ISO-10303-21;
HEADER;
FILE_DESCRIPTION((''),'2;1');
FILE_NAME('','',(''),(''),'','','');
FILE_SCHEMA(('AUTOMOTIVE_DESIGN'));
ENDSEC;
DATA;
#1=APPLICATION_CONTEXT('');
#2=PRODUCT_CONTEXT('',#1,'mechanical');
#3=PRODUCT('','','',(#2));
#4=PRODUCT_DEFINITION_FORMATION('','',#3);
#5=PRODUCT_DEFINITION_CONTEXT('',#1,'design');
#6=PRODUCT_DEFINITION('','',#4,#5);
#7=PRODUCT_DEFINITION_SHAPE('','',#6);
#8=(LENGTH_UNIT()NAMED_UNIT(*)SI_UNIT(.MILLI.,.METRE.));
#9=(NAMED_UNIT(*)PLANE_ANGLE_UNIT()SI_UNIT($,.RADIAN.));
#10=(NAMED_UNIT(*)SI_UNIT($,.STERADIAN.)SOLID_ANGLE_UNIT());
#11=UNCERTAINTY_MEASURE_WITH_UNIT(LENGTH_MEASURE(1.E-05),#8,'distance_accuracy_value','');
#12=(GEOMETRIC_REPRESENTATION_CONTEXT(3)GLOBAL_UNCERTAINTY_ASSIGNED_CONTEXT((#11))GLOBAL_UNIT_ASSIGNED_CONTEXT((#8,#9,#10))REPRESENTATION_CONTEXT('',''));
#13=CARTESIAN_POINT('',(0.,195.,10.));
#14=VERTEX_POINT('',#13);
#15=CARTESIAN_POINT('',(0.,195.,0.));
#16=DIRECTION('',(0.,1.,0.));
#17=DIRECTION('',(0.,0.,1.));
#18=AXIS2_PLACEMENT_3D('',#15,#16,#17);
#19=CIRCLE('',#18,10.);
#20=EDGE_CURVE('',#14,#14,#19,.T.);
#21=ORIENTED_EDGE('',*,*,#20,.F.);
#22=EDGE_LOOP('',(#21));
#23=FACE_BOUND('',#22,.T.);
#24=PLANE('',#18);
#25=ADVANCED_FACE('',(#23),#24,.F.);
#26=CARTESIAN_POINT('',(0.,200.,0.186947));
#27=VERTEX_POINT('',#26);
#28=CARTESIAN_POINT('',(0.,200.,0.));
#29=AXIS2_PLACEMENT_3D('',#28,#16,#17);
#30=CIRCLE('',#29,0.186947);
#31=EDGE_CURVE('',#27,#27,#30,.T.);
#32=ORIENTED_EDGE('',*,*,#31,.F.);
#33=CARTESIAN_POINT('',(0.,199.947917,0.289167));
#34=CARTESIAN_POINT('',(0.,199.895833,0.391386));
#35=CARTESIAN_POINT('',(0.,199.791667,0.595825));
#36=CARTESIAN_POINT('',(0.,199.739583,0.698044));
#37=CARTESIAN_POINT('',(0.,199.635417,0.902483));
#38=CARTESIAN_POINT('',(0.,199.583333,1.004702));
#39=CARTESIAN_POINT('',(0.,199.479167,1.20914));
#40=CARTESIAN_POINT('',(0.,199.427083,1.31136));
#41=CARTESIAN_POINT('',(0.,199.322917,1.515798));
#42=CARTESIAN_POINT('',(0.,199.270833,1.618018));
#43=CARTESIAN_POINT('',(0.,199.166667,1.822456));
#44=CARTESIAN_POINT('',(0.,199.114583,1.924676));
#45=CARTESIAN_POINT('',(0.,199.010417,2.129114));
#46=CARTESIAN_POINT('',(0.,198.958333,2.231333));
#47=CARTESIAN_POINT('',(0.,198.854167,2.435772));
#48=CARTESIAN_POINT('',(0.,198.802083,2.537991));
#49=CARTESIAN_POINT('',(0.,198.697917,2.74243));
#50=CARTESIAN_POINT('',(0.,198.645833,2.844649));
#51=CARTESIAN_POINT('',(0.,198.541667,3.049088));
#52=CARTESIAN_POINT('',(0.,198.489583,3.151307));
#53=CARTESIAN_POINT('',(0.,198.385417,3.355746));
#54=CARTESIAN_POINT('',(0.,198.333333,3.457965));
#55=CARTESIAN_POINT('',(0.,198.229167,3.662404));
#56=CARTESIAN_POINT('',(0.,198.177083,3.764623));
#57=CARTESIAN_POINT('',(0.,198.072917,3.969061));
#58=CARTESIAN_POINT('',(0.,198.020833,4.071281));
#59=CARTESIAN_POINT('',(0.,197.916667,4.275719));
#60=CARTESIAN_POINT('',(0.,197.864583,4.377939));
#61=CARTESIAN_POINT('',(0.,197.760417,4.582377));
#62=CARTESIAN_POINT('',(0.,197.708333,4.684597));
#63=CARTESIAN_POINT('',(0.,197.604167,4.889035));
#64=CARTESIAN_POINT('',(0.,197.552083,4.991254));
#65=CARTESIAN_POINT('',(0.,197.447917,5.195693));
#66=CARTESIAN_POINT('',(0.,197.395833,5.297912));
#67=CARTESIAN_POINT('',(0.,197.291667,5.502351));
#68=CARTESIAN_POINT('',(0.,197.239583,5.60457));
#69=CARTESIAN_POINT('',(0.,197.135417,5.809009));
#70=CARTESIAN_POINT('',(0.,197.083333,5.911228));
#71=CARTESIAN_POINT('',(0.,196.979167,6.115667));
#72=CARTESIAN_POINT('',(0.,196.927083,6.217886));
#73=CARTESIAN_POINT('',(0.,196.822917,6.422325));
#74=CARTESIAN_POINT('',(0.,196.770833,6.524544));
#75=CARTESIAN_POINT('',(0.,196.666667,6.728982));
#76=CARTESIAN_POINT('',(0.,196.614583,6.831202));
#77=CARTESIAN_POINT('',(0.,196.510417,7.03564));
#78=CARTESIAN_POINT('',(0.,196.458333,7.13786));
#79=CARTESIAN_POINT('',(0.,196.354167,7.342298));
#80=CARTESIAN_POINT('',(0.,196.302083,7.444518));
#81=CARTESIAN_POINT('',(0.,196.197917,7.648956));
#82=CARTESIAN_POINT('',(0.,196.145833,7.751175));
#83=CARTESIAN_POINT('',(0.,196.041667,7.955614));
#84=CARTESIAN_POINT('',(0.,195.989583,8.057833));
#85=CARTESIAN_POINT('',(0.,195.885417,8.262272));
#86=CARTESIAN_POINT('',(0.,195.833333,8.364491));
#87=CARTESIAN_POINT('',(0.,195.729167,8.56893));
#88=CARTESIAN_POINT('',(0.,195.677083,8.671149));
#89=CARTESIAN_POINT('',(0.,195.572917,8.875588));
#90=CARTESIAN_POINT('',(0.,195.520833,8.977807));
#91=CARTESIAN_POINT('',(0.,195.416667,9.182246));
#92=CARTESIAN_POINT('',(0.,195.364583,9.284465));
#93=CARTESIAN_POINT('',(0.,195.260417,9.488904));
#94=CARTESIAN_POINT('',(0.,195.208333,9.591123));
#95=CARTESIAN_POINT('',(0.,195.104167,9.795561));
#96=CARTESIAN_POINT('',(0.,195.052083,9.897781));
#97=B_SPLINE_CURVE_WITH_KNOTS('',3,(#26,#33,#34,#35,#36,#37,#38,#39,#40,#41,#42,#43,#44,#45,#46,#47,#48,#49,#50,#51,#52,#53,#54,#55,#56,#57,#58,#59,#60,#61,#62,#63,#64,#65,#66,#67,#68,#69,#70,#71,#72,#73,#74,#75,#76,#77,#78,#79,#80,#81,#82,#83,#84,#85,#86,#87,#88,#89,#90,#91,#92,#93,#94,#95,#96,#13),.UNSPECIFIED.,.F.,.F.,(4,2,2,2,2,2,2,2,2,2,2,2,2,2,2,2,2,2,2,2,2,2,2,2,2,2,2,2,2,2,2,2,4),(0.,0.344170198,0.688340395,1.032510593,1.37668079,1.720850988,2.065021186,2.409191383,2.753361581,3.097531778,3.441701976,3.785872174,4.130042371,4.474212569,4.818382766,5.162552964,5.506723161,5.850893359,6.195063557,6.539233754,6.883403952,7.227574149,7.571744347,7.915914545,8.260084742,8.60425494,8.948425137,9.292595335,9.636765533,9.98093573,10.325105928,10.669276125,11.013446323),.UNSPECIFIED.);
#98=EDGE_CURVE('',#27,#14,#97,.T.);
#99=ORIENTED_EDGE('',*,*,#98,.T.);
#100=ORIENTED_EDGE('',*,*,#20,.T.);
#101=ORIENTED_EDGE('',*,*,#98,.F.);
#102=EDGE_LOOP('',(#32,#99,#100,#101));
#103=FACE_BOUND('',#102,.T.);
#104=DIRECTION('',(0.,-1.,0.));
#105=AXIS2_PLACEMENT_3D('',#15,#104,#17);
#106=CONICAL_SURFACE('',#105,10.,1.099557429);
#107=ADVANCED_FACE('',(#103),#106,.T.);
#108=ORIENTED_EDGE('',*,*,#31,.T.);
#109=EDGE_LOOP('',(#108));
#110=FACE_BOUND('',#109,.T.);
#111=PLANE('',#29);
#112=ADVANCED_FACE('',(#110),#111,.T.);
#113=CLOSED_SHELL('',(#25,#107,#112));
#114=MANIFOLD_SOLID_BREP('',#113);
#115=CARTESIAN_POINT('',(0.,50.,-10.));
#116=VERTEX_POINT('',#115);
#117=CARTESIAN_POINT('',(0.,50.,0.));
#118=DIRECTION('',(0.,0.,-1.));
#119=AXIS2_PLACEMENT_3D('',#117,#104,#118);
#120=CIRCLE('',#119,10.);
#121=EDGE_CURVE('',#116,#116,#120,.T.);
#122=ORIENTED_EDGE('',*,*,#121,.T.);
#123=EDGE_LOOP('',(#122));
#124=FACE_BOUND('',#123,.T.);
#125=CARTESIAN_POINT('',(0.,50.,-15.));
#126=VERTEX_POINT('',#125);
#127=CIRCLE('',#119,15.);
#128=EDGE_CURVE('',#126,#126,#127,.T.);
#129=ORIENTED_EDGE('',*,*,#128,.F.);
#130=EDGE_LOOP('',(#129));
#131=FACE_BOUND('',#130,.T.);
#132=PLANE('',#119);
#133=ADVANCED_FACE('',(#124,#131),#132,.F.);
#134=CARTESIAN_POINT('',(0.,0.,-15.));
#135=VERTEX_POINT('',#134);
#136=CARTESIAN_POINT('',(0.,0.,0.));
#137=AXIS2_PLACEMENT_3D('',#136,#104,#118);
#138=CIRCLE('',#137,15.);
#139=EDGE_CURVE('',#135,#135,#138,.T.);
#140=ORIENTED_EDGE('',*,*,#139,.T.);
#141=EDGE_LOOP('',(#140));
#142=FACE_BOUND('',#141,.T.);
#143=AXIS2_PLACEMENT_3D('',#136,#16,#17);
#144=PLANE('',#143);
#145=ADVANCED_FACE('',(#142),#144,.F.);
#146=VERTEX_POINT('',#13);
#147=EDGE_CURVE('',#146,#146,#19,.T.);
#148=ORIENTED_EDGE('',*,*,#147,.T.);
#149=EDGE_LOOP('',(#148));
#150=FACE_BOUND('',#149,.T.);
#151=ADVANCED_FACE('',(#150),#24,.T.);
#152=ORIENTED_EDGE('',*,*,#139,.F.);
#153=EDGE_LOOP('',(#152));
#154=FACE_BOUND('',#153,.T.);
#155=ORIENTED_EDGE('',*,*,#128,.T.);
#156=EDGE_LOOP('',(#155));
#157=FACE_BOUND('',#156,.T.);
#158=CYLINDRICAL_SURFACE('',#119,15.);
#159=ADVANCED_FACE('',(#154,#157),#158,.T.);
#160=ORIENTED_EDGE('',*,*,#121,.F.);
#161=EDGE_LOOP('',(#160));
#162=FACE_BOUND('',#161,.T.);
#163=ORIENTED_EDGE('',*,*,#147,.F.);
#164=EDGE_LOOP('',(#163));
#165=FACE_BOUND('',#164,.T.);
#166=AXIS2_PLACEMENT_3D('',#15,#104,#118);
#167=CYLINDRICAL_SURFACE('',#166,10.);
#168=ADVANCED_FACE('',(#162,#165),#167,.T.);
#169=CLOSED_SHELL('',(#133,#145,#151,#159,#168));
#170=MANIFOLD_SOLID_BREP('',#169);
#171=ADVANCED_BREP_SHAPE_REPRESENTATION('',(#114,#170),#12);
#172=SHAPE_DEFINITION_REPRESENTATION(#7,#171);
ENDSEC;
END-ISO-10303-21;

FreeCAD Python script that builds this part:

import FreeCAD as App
import Part
import Sketcher

V = App.Vector

doc = App.newDocument("Part")
body = doc.addObject("PartDesign::Body", "Body")

# Sketch on XZ plane
sketch1 = doc.addObject("Sketcher::SketchObject", "Sketch")
body.addObject(sketch1)
sketch1.AttachmentSupport = (doc.XZ_Plane, [""])
sketch1.MapMode = "FlatFace"
sketch1.addGeometry(Part.Circle(V(0, 0, 0), V(0, 0, 1), 10), False)
sketch1.addConstraint(Sketcher.Constraint("Coincident", 0, 3, -1, 1))
sketch1.addConstraint(Sketcher.Constraint("Diameter", 0, 20.0))
pad1 = doc.addObject("PartDesign::Pad", "Pad")
body.addObject(pad1)
pad1.Profile = sketch1
pad1.Length = 195
pad1.Reversed = True

# Sketch on XZ plane
sketch2 = doc.addObject("Sketcher::SketchObject", "Sketch001")
body.addObject(sketch2)
sketch2.AttachmentSupport = (doc.XZ_Plane, [""])
sketch2.MapMode = "FlatFace"
sketch2.addGeometry(Part.Circle(V(0, 0, 0), V(0, 0, 1), 15), False)
sketch2.addConstraint(Sketcher.Constraint("Coincident", 0, 3, -1, 1))
sketch2.addConstraint(Sketcher.Constraint("Diameter", 0, 30.0))
pad2 = doc.addObject("PartDesign::Pad", "Pad001")
body.addObject(pad2)
pad2.Profile = sketch2
pad2.Length = 50
pad2.Reversed = True
body2 = doc.addObject("PartDesign::Body", "Body001")

# Sketch on XZ plane
sketch3 = doc.addObject("Sketcher::SketchObject", "Sketch002")
body2.addObject(sketch3)
sketch3.AttachmentSupport = (doc.getObject("XZ_Plane001"), [""])
sketch3.MapMode = "FlatFace"
sketch3.AttachmentOffset = App.Placement(V(0, 0, -195), App.Rotation())
sketch3.addGeometry(Part.Circle(V(0, 0, 0), V(0, 0, 1), 10), False)
sketch3.addConstraint(Sketcher.Constraint("Coincident", 0, 3, -1, 1))
sketch3.addConstraint(Sketcher.Constraint("Diameter", 0, 20.0))
pad3 = doc.addObject("PartDesign::Pad", "Pad002")
body2.addObject(pad3)
pad3.Profile = sketch3
pad3.Length = 5
pad3.Reversed = True
pad3.TaperAngle = -63

doc.recompute()
